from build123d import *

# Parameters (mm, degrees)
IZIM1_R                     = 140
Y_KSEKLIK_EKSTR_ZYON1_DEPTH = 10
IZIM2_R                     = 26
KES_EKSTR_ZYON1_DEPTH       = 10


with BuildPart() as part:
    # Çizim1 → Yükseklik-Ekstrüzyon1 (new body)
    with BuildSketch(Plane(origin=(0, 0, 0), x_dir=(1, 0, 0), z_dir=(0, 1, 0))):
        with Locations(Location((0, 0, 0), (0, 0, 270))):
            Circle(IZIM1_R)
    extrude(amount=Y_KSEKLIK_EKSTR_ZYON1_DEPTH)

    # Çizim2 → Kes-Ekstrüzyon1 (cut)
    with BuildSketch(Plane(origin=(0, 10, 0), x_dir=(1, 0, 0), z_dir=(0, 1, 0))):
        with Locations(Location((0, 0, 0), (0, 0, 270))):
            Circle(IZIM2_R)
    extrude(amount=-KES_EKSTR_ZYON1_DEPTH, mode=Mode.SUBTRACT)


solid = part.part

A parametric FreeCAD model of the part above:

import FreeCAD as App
import Part
import Sketcher
from FreeCAD import Vector

doc = App.newDocument("Part")
body = doc.addObject("PartDesign::Body", "Body")

sketch1 = body.newObject("Sketcher::SketchObject", "Sketch")
sketch1.AttachmentSupport = (doc.getObject("XZ_Plane"), [""])
sketch1.MapMode = "FlatFace"
sketch1.addGeometry(Part.Circle(Vector(0, 0, 0), Vector(0, 0, 1), 140), False)
sketch1.addConstraint([
    Sketcher.Constraint("Coincident", 0, 3, -1, 1),
    Sketcher.Constraint("Diameter", 0, 280.0),
])
pad1 = body.newObject("PartDesign::Pad", "Pad")
pad1.Profile = sketch1
pad1.Length = 10
pad1.Reversed = True

sketch2 = body.newObject("Sketcher::SketchObject", "Sketch001")
sketch2.AttachmentSupport = (doc.getObject("XZ_Plane"), [""])
sketch2.MapMode = "FlatFace"
sketch2.AttachmentOffset = App.Placement(Vector(0, 0, -10), App.Rotation())
sketch2.addGeometry(Part.Circle(Vector(0, 0, 0), Vector(0, 0, 1), 26), False)
sketch2.addConstraint([
    Sketcher.Constraint("Coincident", 0, 3, -1, 1),
    Sketcher.Constraint("Diameter", 0, 52.0),
])
pocket1 = body.newObject("PartDesign::Pocket", "Pocket")
pocket1.Profile = sketch2
pocket1.Length = 10
pocket1.Reversed = True

doc.recompute()
